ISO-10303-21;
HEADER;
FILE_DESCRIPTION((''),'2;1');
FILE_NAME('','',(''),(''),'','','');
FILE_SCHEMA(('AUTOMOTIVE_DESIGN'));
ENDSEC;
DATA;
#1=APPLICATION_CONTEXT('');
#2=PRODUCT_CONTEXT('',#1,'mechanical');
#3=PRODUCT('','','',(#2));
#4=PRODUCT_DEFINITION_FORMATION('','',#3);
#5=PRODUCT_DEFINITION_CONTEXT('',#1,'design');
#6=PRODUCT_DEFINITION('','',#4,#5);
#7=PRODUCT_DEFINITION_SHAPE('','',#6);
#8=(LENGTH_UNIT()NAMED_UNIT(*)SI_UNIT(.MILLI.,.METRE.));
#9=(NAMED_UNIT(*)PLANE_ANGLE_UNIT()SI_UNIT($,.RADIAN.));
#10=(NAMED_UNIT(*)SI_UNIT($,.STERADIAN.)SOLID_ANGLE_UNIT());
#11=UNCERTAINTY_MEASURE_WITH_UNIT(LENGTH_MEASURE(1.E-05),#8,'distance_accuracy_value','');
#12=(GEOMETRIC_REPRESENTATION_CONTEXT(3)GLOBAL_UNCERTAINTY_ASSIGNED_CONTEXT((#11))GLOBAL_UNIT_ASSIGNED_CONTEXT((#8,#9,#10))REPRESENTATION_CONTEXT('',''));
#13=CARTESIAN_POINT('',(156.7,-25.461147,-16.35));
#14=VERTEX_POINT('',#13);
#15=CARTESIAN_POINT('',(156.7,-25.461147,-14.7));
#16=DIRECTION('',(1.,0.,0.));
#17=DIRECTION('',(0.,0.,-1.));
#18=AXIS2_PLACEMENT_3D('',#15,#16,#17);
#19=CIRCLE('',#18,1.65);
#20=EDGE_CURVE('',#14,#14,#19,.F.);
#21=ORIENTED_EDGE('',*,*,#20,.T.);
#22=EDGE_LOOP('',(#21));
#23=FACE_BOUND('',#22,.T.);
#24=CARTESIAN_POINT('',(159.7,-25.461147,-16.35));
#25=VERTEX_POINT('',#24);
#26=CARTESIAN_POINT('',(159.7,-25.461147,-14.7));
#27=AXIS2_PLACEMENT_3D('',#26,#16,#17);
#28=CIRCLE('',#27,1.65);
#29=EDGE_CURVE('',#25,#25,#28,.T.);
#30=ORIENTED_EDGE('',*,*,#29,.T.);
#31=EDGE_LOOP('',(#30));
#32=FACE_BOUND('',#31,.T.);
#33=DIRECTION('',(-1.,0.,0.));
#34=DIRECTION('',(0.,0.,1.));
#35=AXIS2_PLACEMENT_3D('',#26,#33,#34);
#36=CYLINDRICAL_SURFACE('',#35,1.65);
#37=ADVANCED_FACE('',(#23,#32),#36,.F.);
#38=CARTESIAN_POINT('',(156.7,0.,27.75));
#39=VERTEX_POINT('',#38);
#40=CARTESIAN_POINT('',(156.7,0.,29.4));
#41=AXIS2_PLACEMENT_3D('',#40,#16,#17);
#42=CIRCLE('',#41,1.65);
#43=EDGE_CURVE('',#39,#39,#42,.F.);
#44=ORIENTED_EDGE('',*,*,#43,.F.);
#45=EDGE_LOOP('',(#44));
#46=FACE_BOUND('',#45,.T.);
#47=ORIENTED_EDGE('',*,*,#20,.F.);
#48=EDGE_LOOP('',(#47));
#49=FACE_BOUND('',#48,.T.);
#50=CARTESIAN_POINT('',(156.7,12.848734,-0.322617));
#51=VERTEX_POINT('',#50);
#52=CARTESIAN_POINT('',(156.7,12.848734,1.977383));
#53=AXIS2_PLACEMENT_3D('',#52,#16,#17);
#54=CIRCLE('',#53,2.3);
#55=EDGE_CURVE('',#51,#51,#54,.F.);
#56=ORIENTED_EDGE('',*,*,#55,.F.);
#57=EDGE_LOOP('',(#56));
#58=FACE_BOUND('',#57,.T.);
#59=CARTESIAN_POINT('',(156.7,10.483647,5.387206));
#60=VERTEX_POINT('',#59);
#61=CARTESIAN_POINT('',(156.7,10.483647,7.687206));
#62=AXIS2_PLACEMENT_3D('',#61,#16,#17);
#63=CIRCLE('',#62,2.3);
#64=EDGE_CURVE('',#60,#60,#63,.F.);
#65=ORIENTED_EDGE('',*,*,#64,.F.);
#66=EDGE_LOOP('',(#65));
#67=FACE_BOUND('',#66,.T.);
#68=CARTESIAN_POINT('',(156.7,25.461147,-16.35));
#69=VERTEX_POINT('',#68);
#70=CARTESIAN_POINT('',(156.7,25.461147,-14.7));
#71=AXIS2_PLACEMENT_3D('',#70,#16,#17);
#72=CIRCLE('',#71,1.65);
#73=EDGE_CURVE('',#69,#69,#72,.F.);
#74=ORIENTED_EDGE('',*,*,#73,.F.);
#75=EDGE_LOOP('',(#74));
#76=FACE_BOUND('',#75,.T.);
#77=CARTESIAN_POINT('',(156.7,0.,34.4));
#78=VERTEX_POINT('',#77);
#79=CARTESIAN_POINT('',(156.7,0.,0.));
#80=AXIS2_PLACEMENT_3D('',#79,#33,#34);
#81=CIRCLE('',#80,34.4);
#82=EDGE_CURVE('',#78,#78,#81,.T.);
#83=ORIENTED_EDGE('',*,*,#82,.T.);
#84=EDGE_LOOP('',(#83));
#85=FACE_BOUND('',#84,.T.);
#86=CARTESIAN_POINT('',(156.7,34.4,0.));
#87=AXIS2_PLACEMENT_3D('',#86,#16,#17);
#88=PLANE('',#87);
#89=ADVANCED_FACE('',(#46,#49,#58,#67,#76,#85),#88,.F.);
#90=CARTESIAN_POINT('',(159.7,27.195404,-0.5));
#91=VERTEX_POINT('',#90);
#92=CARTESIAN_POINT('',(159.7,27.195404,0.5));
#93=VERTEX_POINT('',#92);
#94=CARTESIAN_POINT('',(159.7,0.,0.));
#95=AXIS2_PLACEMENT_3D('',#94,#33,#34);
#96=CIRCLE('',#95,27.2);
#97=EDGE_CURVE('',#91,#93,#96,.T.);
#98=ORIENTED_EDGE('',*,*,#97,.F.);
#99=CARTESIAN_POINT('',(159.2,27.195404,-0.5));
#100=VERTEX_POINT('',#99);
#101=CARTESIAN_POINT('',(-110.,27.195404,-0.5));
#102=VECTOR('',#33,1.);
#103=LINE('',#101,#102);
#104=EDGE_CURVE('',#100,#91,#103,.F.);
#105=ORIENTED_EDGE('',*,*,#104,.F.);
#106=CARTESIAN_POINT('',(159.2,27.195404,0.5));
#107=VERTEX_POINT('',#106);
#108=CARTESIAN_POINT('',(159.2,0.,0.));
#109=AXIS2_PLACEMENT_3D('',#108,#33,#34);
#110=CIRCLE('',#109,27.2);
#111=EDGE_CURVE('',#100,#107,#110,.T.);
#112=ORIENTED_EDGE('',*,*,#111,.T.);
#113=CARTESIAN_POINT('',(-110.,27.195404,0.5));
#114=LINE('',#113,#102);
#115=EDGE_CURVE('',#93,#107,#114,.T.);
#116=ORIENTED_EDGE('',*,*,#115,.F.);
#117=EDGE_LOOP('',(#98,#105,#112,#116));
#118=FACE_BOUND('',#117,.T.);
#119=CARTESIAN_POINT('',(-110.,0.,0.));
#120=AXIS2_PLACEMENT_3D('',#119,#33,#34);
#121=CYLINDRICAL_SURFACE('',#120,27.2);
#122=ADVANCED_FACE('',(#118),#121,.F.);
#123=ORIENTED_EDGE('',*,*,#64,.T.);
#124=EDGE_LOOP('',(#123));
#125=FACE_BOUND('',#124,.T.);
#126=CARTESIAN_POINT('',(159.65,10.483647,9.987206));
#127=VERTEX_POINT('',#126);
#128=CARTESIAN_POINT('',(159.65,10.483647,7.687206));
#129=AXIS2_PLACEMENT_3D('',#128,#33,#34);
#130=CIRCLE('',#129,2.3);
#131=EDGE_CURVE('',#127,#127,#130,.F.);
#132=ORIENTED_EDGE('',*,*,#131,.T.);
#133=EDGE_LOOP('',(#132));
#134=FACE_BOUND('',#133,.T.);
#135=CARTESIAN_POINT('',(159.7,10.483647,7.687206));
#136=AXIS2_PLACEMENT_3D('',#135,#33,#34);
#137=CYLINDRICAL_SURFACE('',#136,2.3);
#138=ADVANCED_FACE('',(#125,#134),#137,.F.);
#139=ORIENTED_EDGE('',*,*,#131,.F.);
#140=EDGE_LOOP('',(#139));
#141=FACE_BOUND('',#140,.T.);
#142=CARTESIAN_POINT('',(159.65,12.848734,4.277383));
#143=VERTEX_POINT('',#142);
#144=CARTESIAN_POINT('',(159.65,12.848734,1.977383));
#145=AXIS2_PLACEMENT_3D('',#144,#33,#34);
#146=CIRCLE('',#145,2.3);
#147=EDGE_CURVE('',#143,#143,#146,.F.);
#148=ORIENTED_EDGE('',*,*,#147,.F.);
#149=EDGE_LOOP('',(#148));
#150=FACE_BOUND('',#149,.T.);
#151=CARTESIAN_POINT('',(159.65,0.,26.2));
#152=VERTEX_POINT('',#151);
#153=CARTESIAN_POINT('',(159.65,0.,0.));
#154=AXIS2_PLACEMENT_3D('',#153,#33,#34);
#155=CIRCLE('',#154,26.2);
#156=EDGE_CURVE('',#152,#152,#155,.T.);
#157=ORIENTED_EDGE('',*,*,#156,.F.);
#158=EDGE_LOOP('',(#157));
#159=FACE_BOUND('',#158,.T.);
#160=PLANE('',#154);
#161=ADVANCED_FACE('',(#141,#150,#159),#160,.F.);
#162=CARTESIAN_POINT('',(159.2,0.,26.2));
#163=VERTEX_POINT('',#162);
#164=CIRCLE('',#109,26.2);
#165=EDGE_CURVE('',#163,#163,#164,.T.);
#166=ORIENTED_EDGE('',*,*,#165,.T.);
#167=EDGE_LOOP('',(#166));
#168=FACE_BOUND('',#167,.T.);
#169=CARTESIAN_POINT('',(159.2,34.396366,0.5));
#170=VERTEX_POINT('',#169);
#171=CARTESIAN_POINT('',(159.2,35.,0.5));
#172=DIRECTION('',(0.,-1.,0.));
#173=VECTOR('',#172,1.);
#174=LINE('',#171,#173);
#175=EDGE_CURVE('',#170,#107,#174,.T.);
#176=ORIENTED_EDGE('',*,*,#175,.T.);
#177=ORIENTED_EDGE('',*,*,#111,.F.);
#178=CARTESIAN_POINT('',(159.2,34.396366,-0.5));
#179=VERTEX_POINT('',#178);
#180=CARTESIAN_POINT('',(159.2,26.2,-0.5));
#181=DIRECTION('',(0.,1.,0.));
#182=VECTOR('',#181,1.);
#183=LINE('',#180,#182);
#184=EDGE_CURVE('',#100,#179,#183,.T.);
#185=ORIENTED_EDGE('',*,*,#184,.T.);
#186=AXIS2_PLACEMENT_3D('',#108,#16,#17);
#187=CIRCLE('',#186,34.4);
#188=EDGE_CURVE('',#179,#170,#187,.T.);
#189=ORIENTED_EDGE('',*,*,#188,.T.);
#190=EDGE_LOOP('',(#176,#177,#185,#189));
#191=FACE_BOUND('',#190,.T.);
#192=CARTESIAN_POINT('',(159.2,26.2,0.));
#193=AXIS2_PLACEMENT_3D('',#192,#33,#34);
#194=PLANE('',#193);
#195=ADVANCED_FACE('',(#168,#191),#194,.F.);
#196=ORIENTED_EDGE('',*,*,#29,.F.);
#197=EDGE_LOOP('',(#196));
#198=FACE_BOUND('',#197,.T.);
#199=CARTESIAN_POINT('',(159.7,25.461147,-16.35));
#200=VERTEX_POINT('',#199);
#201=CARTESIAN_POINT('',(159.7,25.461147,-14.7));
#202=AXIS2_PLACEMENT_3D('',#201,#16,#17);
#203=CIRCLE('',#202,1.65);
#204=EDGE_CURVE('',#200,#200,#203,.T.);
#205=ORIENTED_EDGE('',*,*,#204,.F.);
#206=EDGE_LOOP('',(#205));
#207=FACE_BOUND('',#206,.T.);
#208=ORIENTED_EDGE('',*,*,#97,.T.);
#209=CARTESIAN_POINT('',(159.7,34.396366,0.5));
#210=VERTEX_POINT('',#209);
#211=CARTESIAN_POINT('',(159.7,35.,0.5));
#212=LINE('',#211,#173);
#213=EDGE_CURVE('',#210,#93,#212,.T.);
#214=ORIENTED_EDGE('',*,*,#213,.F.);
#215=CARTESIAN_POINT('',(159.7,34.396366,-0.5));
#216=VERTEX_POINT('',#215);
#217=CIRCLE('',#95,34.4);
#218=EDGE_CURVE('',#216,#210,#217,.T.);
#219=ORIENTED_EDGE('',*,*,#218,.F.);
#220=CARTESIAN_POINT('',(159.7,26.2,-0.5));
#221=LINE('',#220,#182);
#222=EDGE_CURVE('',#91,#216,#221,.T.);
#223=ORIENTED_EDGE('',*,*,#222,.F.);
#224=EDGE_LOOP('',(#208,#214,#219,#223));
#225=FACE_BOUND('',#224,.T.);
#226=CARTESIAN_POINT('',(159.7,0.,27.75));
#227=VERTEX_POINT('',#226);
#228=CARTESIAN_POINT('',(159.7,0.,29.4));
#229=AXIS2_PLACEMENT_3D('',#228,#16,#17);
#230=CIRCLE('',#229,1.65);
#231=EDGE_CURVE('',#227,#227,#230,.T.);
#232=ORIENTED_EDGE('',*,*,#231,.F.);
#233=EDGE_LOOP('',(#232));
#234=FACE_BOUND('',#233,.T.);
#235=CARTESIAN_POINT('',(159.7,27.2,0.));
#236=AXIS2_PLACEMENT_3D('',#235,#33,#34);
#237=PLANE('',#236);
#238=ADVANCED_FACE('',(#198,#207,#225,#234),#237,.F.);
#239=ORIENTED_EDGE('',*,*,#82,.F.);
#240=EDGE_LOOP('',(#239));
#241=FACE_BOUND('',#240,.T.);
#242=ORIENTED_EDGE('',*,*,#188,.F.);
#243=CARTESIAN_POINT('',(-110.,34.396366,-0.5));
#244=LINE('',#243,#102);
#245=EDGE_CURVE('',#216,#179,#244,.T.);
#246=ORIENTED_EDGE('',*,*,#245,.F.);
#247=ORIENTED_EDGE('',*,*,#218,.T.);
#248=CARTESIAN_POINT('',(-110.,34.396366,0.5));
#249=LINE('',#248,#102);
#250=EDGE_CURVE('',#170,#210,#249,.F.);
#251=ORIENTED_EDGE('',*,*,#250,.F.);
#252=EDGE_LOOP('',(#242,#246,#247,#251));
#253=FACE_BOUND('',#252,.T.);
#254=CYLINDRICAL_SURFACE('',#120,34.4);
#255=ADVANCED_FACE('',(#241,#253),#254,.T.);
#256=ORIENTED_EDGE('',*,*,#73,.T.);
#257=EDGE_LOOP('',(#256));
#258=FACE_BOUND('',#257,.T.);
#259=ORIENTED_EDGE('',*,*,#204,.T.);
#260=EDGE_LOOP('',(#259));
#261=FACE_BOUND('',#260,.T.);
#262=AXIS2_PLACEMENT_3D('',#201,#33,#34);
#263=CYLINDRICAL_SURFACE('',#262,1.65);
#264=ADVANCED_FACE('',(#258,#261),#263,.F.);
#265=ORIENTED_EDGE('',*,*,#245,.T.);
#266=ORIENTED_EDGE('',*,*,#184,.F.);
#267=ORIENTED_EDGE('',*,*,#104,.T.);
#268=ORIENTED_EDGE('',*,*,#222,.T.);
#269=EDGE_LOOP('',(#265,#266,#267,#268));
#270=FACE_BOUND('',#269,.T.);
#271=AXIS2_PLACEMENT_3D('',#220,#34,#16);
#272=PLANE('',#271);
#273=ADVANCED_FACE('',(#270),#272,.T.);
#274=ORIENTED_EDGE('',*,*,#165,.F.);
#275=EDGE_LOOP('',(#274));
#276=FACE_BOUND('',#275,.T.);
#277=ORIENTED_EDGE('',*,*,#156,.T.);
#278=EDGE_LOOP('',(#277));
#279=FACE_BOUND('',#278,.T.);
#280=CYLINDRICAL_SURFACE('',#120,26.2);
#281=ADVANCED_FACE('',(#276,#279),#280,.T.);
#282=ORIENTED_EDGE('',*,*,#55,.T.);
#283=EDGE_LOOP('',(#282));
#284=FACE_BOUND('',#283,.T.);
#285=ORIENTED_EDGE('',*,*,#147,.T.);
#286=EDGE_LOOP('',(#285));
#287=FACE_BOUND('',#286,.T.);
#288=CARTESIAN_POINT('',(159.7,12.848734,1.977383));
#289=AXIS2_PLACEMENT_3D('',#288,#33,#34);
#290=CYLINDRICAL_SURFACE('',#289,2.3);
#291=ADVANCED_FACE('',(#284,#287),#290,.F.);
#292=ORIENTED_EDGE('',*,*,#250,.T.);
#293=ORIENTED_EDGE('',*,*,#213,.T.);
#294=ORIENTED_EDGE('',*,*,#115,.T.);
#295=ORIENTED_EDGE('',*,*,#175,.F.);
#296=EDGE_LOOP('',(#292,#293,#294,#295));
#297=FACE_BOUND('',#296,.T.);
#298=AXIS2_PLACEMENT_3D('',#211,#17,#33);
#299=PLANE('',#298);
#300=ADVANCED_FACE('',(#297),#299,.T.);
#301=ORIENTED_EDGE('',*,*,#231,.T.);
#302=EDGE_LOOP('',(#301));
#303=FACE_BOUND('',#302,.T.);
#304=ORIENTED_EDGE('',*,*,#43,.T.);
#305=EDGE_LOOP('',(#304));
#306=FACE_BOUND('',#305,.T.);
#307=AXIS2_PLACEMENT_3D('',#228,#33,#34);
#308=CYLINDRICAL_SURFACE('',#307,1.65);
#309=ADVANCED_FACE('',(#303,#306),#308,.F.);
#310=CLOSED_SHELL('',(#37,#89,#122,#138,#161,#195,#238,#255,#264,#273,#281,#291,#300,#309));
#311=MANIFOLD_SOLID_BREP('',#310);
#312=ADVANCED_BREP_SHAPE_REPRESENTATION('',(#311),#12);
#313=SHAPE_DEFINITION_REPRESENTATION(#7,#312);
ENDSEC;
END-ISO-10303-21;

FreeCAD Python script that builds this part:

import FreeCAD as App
import Part
import Sketcher
from FreeCAD import Vector

doc = App.newDocument("Part")
body = doc.addObject("PartDesign::Body", "Body")

# Sketch on XY plane
sketch1 = body.newObject("Sketcher::SketchObject", "Sketch")
sketch1.AttachmentSupport = (doc.getObject("XY_Plane"), [""])
sketch1.MapMode = "FlatFace"
sketch1.addGeometry([
    Part.LineSegment(Vector(156.7, 0, 0), Vector(159.65, 0, 0)),  # 0
    Part.LineSegment(Vector(159.65, 0, 0), Vector(159.65, 26.2, 0)),  # 1
    Part.LineSegment(Vector(159.65, 26.2, 0), Vector(159.2, 26.2, 0)),  # 2
    Part.LineSegment(Vector(159.2, 26.2, 0), Vector(159.2, 27.2, 0)),  # 3
    Part.LineSegment(Vector(159.2, 27.2, 0), Vector(159.7, 27.2, 0)),  # 4
    Part.LineSegment(Vector(159.7, 27.2, 0), Vector(159.7, 34.4, 0)),  # 5
    Part.LineSegment(Vector(159.7, 34.4, 0), Vector(156.7, 34.4, 0)),  # 6
    Part.LineSegment(Vector(156.7, 34.4, 0), Vector(156.7, 0, 0)),  # 7
], False)
sketch1.addConstraint([
    Sketcher.Constraint("Coincident", 0, 2, 1, 1),
    Sketcher.Constraint("Coincident", 1, 2, 2, 1),
    Sketcher.Constraint("Coincident", 2, 2, 3, 1),
    Sketcher.Constraint("Coincident", 3, 2, 4, 1),
    Sketcher.Constraint("Coincident", 4, 2, 5, 1),
    Sketcher.Constraint("Coincident", 5, 2, 6, 1),
    Sketcher.Constraint("Coincident", 6, 2, 7, 1),
    Sketcher.Constraint("Coincident", 7, 2, 0, 1),
    Sketcher.Constraint("Horizontal", 0),
    Sketcher.Constraint("Vertical", 1),
    Sketcher.Constraint("Horizontal", 2),
    Sketcher.Constraint("Vertical", 3),
    Sketcher.Constraint("Horizontal", 4),
    Sketcher.Constraint("Vertical", 5),
    Sketcher.Constraint("Horizontal", 6),
    Sketcher.Constraint("Vertical", 7),
    Sketcher.Constraint("PointOnObject", 0, 2, -1),
    Sketcher.Constraint("DistanceX", 6, 2, 6, 1, 3.0),
    Sketcher.Constraint("DistanceY", 3, 1, 3, 2, 1.0),
    Sketcher.Constraint("DistanceX", 4, 1, 4, 2, 0.5),
    Sketcher.Constraint("DistanceY", 1, 1, 1, 2, 26.2),
    Sketcher.Constraint("DistanceY", 5, 1, 5, 2, 7.2),
    Sketcher.Constraint("DistanceX", 0, 1, 0, 2, 2.95),
    Sketcher.Constraint("DistanceX", -1, 1, 2, 2, 159.2),
])
revolution = body.newObject("PartDesign::Revolution", "Revolution")
revolution.Profile = sketch1
revolution.ReferenceAxis = (sketch1, ["H_Axis"])
revolution.Angle = 360

# Sketch on YZ plane
sketch2 = body.newObject("Sketcher::SketchObject", "Sketch001")
sketch2.AttachmentSupport = (doc.getObject("YZ_Plane"), [""])
sketch2.MapMode = "FlatFace"
sketch2.addGeometry([
    Part.Circle(Vector(12.848734, 1.977383, 0), Vector(0, 0, 1), 2.3),  # 0
    Part.Circle(Vector(10.483647, 7.687206, 0), Vector(0, 0, 1), 2.3),  # 1
    Part.Circle(Vector(0, 29.4, 0), Vector(0, 0, 1), 1.65),  # 2
    Part.Circle(Vector(-25.461147, -14.7, 0), Vector(0, 0, 1), 1.65),  # 3
    Part.Circle(Vector(25.461147, -14.7, 0), Vector(0, 0, 1), 1.65),  # 4
], False)
sketch2.addConstraint([
    Sketcher.Constraint("Equal", 0, 1),
    Sketcher.Constraint("Equal", 2, 3),
    Sketcher.Constraint("Equal", 3, 4),
    Sketcher.Constraint("Symmetric", 3, 3, 4, 3, -2),
    Sketcher.Constraint("PointOnObject", 2, 3, -2),
    Sketcher.Constraint("Diameter", 0, 4.6),
    Sketcher.Constraint("Diameter", 2, 3.3),
    Sketcher.Constraint("DistanceY", -1, 1, 2, 3, 29.4),
    Sketcher.Constraint("DistanceY", 3, 3, -1, 1, 14.7),
    Sketcher.Constraint("DistanceX", 1, 3, 4, 3, 14.977499),
    Sketcher.Constraint("DistanceX", 3, 3, 0, 3, 38.309881),
    Sketcher.Constraint("DistanceX", -1, 1, 0, 3, 12.848734),
    Sketcher.Constraint("DistanceY", -1, 1, 0, 3, 1.977383),
    Sketcher.Constraint("DistanceY", -1, 1, 1, 3, 7.687206),
])
pocket1 = body.newObject("PartDesign::Pocket", "Pocket")
pocket1.Profile = sketch2
pocket1.Type = "ThroughAll"
pocket1.Midplane = True

# Sketch on YZ plane
sketch3 = body.newObject("Sketcher::SketchObject", "Sketch002")
sketch3.AttachmentSupport = (doc.getObject("YZ_Plane"), [""])
sketch3.MapMode = "FlatFace"
sketch3.AttachmentOffset = App.Placement(Vector(0, 0, 159.2), App.Rotation())
sketch3.addGeometry([
    Part.LineSegment(Vector(35, 0.5, 0), Vector(26.2, 0.5, 0)),
    Part.LineSegment(Vector(26.2, 0.5, 0), Vector(26.2, -0.5, 0)),
    Part.LineSegment(Vector(26.2, -0.5, 0), Vector(35, -0.5, 0)),
    Part.LineSegment(Vector(35, -0.5, 0), Vector(35, 0.5, 0)),
], False)
sketch3.addConstraint([
    Sketcher.Constraint("Coincident", 0, 2, 1, 1),
    Sketcher.Constraint("Coincident", 1, 2, 2, 1),
    Sketcher.Constraint("Coincident", 2, 2, 3, 1),
    Sketcher.Constraint("Coincident", 3, 2, 0, 1),
    Sketcher.Constraint("Horizontal", 0),
    Sketcher.Constraint("Vertical", 1),
    Sketcher.Constraint("Horizontal", 2),
    Sketcher.Constraint("Vertical", 3),
    Sketcher.Constraint("DistanceY", 1, 2, 1, 1, 1.0),
    Sketcher.Constraint("DistanceX", 0, 2, 0, 1, 8.8),
    Sketcher.Constraint("DistanceX", -1, 1, 2, 2, 35.0),
    Sketcher.Constraint("DistanceY", -1, 1, 0, 2, 0.5),
])
pocket2 = body.newObject("PartDesign::Pocket", "Pocket001")
pocket2.Profile = sketch3
pocket2.Length = 0.5
pocket2.Reversed = True

doc.recompute()
